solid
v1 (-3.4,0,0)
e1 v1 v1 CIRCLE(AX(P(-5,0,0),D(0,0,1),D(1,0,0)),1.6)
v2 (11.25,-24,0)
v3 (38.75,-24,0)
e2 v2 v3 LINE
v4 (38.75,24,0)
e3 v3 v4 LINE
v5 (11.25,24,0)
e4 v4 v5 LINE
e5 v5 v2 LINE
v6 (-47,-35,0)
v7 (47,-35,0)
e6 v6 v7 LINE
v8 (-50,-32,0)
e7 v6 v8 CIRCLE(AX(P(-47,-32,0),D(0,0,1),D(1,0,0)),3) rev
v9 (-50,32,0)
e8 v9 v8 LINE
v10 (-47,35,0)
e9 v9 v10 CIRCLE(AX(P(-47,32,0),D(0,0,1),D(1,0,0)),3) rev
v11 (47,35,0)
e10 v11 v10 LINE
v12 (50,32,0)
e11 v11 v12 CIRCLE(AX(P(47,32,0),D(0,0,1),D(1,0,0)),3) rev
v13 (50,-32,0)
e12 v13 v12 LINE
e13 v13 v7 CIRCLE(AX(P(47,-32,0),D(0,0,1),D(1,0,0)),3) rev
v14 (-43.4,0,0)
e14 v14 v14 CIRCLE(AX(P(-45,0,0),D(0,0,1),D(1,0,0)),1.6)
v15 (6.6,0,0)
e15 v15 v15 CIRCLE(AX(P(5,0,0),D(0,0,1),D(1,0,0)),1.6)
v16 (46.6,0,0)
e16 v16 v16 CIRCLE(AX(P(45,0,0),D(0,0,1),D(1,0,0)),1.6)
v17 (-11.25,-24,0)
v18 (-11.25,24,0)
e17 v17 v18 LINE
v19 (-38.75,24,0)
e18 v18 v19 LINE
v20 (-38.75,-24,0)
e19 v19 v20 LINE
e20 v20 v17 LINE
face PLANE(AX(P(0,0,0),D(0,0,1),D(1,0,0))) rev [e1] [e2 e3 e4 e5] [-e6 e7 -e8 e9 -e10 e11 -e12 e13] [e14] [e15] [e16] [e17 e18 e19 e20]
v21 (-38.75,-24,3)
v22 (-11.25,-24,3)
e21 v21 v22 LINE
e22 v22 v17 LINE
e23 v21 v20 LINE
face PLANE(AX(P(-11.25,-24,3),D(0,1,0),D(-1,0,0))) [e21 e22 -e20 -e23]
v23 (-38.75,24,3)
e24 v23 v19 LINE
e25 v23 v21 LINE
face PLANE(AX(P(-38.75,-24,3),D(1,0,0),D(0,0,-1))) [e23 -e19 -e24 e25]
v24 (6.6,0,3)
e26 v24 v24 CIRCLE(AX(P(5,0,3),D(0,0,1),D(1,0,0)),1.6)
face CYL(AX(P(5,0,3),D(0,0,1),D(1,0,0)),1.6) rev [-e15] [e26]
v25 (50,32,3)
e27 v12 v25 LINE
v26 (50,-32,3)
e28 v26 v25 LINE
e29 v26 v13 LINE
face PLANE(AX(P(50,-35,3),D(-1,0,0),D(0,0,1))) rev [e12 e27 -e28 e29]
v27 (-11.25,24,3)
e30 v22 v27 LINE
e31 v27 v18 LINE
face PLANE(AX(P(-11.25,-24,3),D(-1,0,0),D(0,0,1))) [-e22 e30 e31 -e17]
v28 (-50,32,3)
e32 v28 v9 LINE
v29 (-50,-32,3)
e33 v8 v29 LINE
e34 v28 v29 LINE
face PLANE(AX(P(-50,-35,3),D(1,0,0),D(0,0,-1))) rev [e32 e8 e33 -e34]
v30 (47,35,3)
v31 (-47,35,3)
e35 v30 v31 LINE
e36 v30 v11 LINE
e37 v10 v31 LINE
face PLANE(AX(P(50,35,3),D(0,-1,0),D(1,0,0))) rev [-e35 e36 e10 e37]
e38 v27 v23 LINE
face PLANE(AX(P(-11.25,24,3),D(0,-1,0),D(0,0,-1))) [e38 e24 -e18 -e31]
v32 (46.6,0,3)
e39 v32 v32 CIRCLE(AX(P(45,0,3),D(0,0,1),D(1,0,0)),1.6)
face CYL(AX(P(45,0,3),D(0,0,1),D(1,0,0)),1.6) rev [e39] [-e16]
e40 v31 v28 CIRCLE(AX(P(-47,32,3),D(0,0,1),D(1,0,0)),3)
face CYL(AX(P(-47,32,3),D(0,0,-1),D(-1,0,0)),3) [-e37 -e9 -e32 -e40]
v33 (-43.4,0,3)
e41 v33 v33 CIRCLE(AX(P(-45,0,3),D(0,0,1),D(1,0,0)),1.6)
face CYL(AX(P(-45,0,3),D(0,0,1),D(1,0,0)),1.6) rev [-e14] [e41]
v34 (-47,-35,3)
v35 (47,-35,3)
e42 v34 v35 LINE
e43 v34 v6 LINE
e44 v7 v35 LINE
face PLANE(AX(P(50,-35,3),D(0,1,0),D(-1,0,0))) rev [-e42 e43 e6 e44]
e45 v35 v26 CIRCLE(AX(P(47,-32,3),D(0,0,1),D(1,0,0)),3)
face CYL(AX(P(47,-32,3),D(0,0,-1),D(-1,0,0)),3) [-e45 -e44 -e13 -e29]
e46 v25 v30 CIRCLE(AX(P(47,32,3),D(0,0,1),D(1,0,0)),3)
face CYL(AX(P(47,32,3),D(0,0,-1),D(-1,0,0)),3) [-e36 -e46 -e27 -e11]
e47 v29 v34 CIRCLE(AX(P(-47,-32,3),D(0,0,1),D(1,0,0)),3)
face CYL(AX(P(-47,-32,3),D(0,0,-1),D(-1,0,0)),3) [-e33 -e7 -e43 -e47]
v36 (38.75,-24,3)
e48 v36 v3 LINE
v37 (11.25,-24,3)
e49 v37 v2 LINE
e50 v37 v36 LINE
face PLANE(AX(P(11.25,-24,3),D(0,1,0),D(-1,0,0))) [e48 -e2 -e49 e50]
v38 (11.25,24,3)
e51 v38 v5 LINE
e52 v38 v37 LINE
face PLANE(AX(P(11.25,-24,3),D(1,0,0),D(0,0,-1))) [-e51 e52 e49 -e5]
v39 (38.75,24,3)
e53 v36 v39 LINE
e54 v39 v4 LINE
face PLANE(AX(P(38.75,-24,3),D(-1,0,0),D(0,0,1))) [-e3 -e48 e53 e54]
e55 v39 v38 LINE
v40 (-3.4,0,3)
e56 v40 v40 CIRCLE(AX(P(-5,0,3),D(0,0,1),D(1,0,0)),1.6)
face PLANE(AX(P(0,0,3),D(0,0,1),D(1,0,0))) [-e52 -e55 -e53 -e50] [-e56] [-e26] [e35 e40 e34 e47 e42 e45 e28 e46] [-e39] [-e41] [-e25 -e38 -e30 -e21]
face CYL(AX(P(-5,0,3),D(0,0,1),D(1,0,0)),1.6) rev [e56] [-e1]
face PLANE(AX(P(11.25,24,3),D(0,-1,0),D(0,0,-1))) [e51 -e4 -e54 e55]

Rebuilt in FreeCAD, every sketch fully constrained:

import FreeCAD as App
import Part
import Sketcher
from FreeCAD import Vector
Q = App.Units.Quantity


def edges_at(feature, points):
    """Names of the edges that pass closest to the given points."""
    edges = feature.Shape.Edges
    near = lambda p: min(range(len(edges)), key=lambda i: edges[i].distToShape(Part.Vertex(*p))[0])
    return sorted({f"Edge{near(p) + 1}" for p in points})


def add_polygon(sketch, points):
    """Adds a closed chain of lines whose ends are joined by coincident constraints."""
    first, n = sketch.GeometryCount, len(points)
    for a, b in zip(points, points[1:] + points[:1]):
        sketch.addGeometry(Part.LineSegment(App.Vector(*a, 0), App.Vector(*b, 0)), False)
    for i in range(n):
        sketch.addConstraint(Sketcher.Constraint("Coincident", first + i, 2, first + (i + 1) % n, 1))

doc = App.newDocument("Part")
params = doc.addObject("Spreadsheet::Sheet", "Params")
for row, (alias, value) in enumerate([
    ("sketch1_width", "100 mm"),
    ("sketch1_height", "70 mm"),
    ("sketch1_height2", "48 mm"),
    ("sketch1_width2", "27.5 mm"),
    ("pad1_length", "3 mm"),
    ("sketch2_diameter", "3.2 mm"),
    ("hole_diameter", "3.2 mm"),
    ("fillet_radius", "3 mm"),
], start=1):
    params.set(f"A{row}", alias)
    params.set(f"B{row}", "=" + value)
    params.setAlias(f"B{row}", alias)

body = doc.addObject("PartDesign::Body", "Body")

sketch1 = body.newObject("Sketcher::SketchObject", "Sketch")
sketch1.AttachmentSupport = (doc.getObject("XY_Plane"), [""])
sketch1.MapMode = "FlatFace"
add_polygon(sketch1, [(-50, 35), (-50, -35), (50, -35), (50, 35)])
add_polygon(sketch1, [(-11, -24), (-39, -24), (-39, 24), (-11, 24)])
add_polygon(sketch1, [(39, -24), (11, -24), (11, 24), (39, 24)])
sketch1.addConstraint([
    Sketcher.Constraint("Vertical", 0),
    Sketcher.Constraint("Horizontal", 1),
    Sketcher.Constraint("Vertical", 2),
    Sketcher.Constraint("Horizontal", 3),
    Sketcher.Constraint("Horizontal", 4),
    Sketcher.Constraint("Vertical", 5),
    Sketcher.Constraint("Horizontal", 6),
    Sketcher.Constraint("Vertical", 7),
    Sketcher.Constraint("Horizontal", 8),
    Sketcher.Constraint("Vertical", 9),
    Sketcher.Constraint("Horizontal", 10),
    Sketcher.Constraint("Vertical", 11),
    Sketcher.Constraint("Symmetric", 0, 2, 2, 2, -1, 1),
    Sketcher.Constraint("Symmetric", 6, 2, 8, 2, -1, 1),
    Sketcher.Constraint("Symmetric", 4, 2, 10, 2, -1, 1),
    Sketcher.Constraint("Horizontal", 7, 2, 8, 2),
    Sketcher.Constraint("DistanceX", 1, 1, 1, 2, Q("100 mm")),
    Sketcher.Constraint("DistanceY", 0, 2, 0, 1, Q("70 mm")),
    Sketcher.Constraint("DistanceY", 5, 1, 5, 2, Q("48 mm")),
    Sketcher.Constraint("DistanceX", 4, 2, 4, 1, Q("27.5 mm")),
    Sketcher.Constraint("DistanceX", 4, 2, 8, 2, Q("50 mm")),
])
sketch1.setExpression("Constraints[28]", "Params.sketch1_width")
sketch1.setExpression("Constraints[29]", "Params.sketch1_height")
sketch1.setExpression("Constraints[30]", "Params.sketch1_height2")
sketch1.setExpression("Constraints[31]", "Params.sketch1_width2")
pad1 = body.newObject("PartDesign::Pad", "Pad")
pad1.Profile = sketch1
pad1.setExpression("Length", "Params.pad1_length")

sketch2 = body.newObject("Sketcher::SketchObject", "Sketch001")
sketch2.AttachmentSupport = (doc.getObject("XY_Plane"), [""])
sketch2.MapMode = "FlatFace"
sketch2.AttachmentOffset = App.Placement(Vector(0, 0, 3), App.Rotation())
sketch2.addGeometry([
    Part.Circle(Vector(-45, 0, 0), Vector(0, 0, 1), 1.6),
    Part.Circle(Vector(-5, 0, 0), Vector(0, 0, 1), 1.6),
    Part.Circle(Vector(45, 0, 0), Vector(0, 0, 1), 1.6),
    Part.Circle(Vector(5, 0, 0), Vector(0, 0, 1), 1.6),
], False)
sketch2.addConstraint([
    Sketcher.Constraint("Equal", 0, 1),
    Sketcher.Constraint("Equal", 1, 2),
    Sketcher.Constraint("Equal", 2, 3),
    Sketcher.Constraint("Symmetric", 0, 3, 2, 3, -1, 1),
    Sketcher.Constraint("Symmetric", 1, 3, 3, 3, -1, 1),
    Sketcher.Constraint("PointOnObject", 0, 3, -1),
    Sketcher.Constraint("PointOnObject", 1, 3, -1),
    Sketcher.Constraint("Diameter", 0, Q("3.2 mm")),
    Sketcher.Constraint("DistanceX", 0, 3, -1, 1, Q("45 mm")),
    Sketcher.Constraint("DistanceX", 1, 3, -1, 1, Q("5 mm")),
])
sketch2.setExpression("Constraints[7]", "Params.sketch2_diameter")
doc.recompute()
hole = body.newObject("PartDesign::Hole", "Hole")
hole.Profile = sketch2
hole.ThreadType = "None"
hole.setExpression("Diameter", "Params.hole_diameter")
hole.DepthType = "ThroughAll"
doc.recompute()

fillet = body.newObject("PartDesign::Fillet", "Fillet")
fillet.Base = (hole, edges_at(hole, [
    (-50, 35, 1.5),
    (50, 35, 1.5),
    (50, -35, 1.5),
    (-50, -35, 1.5),
]))
fillet.setExpression("Radius", "Params.fillet_radius")

doc.recompute()
